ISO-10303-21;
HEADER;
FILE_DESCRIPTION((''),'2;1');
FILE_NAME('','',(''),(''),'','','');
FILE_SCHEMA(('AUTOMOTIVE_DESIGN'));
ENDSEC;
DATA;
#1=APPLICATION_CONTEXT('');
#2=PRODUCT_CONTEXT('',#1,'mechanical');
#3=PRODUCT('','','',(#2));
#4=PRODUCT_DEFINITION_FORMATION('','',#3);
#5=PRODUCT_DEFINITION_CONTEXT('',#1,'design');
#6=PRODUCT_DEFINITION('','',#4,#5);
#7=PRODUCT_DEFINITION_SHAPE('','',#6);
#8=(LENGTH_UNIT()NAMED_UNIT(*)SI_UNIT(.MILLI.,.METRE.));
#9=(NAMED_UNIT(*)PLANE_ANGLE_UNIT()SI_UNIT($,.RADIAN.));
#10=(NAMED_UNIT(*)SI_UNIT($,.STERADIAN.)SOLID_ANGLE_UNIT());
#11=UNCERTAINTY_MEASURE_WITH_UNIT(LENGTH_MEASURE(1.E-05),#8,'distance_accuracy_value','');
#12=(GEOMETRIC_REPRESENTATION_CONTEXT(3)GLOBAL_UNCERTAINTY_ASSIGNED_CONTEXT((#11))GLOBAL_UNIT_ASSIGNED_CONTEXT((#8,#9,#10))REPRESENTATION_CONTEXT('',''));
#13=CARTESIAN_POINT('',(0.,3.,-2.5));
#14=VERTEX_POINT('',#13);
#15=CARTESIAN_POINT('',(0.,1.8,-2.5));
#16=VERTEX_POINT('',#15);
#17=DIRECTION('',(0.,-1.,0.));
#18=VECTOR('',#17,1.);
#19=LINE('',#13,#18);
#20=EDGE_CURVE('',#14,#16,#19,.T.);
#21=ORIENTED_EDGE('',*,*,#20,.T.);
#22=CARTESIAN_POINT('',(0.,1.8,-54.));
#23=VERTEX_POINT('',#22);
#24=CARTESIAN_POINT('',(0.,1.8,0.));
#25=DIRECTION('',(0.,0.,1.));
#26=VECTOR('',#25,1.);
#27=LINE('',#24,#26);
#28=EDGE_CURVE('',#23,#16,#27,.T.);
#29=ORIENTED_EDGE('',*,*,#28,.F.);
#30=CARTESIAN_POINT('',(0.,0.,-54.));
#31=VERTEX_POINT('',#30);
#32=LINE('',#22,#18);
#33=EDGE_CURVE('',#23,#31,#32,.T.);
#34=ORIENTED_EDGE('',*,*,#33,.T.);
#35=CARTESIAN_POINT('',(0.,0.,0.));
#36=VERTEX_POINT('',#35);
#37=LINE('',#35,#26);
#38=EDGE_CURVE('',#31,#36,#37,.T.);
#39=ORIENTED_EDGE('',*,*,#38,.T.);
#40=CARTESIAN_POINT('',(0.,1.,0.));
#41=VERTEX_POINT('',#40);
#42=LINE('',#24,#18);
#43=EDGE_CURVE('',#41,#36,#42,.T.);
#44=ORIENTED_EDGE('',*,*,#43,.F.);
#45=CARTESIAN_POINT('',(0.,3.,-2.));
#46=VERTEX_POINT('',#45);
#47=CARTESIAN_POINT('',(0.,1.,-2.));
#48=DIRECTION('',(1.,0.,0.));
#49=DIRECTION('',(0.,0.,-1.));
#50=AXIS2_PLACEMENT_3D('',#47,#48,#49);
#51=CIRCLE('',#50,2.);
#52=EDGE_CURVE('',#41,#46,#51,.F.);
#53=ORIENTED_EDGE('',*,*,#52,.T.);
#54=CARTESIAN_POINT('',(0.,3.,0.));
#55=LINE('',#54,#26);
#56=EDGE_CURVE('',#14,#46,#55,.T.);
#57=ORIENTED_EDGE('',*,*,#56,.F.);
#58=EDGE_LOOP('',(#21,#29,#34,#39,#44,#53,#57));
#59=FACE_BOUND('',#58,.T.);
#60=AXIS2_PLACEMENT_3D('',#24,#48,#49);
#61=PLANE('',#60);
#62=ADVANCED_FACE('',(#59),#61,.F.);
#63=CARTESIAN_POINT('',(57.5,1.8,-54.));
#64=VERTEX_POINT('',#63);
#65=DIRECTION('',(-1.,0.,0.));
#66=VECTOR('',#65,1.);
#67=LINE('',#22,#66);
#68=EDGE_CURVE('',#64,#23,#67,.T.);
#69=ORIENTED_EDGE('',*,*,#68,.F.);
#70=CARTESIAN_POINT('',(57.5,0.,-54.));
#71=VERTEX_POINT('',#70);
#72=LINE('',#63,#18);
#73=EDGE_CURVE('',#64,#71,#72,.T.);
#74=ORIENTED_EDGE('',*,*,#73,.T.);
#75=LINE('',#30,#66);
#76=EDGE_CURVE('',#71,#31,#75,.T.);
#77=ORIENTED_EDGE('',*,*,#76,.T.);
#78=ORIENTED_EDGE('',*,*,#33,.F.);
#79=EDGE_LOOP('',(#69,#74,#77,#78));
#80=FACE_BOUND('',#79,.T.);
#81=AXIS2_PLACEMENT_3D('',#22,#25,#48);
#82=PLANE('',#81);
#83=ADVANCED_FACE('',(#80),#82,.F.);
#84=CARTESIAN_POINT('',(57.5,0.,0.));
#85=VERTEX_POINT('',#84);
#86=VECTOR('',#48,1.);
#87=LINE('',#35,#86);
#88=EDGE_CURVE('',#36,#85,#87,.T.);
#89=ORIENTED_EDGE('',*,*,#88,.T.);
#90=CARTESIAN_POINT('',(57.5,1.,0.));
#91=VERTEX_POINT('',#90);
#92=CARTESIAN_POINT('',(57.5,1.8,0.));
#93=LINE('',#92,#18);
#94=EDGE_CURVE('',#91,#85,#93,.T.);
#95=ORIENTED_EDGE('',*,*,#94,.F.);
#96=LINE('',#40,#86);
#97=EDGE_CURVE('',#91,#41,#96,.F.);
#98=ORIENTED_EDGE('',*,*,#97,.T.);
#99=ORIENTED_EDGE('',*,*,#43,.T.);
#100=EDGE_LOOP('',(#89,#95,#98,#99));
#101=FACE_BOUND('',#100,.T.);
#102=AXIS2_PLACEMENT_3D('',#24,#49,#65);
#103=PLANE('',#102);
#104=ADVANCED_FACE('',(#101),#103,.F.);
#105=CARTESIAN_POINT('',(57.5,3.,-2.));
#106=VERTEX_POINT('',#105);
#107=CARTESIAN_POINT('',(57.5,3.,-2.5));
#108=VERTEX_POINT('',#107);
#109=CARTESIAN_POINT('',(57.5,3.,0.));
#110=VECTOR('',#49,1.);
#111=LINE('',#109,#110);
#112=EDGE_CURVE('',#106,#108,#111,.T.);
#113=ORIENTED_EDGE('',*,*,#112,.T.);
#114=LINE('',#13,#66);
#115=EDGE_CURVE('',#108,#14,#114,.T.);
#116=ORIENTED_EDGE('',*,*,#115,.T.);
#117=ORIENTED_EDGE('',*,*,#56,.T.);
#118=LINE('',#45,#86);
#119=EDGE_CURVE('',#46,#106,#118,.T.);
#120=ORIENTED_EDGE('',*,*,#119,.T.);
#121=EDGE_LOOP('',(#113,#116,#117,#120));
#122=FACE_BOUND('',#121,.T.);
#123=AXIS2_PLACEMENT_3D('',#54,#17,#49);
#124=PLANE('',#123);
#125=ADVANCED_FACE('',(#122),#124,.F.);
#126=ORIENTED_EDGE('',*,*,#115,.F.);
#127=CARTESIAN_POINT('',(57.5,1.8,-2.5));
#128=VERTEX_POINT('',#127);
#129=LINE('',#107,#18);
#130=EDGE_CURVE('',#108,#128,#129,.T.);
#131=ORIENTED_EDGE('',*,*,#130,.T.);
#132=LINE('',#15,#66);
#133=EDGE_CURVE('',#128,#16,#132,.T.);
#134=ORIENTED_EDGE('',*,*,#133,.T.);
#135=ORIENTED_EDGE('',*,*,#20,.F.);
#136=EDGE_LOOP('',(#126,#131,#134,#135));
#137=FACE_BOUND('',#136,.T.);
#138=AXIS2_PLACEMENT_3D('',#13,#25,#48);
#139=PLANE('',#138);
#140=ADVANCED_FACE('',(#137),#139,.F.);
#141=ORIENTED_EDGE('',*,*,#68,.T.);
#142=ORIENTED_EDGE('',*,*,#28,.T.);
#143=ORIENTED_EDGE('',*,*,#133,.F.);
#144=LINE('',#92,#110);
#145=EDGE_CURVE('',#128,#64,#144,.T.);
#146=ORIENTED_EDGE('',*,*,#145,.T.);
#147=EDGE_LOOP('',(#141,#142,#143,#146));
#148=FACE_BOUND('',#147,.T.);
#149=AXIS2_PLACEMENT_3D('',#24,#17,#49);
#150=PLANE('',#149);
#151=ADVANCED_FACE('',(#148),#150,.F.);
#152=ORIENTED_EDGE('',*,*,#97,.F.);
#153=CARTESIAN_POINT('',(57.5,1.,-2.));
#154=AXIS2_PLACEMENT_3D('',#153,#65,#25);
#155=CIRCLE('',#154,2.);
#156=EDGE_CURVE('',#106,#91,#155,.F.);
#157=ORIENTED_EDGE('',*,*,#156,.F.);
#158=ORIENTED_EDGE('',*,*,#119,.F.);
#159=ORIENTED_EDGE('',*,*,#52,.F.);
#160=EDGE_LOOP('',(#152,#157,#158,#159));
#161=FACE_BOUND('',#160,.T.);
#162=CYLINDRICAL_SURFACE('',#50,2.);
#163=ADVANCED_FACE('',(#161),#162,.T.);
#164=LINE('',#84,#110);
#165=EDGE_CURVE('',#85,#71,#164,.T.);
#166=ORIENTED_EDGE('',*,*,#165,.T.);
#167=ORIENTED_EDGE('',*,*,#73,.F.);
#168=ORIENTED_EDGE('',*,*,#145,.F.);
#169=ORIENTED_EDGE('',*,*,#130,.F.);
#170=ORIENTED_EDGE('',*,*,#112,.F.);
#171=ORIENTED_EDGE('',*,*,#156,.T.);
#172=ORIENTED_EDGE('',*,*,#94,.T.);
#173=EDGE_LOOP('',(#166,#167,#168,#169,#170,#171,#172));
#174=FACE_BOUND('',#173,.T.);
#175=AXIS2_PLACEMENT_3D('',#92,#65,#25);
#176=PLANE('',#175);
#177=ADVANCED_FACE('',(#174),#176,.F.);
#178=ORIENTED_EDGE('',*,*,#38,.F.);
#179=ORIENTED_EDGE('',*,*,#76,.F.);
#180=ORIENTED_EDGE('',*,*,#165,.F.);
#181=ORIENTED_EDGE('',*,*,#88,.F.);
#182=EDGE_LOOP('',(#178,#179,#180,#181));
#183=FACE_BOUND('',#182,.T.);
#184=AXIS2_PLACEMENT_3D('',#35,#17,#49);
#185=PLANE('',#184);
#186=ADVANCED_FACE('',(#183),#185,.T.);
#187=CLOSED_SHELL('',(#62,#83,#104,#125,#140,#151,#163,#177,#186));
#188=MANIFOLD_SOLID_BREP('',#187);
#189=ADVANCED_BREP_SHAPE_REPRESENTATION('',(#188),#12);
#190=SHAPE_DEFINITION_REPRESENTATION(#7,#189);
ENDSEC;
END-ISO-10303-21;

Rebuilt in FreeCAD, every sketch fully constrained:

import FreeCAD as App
import Part
import Sketcher
Q = App.Units.Quantity


def edges_at(feature, points):
    """Names of the edges that pass closest to the given points."""
    edges = feature.Shape.Edges
    near = lambda p: min(range(len(edges)), key=lambda i: edges[i].distToShape(Part.Vertex(*p))[0])
    return sorted({f"Edge{near(p) + 1}" for p in points})


def add_polygon(sketch, points):
    """Adds a closed chain of lines whose ends are joined by coincident constraints."""
    first, n = sketch.GeometryCount, len(points)
    for a, b in zip(points, points[1:] + points[:1]):
        sketch.addGeometry(Part.LineSegment(App.Vector(*a, 0), App.Vector(*b, 0)), False)
    for i in range(n):
        sketch.addConstraint(Sketcher.Constraint("Coincident", first + i, 2, first + (i + 1) % n, 1))

doc = App.newDocument("Part")
params = doc.addObject("Spreadsheet::Sheet", "Params")
for row, (alias, value) in enumerate([
    ("sketch1_height", "54 mm"),
    ("sketch1_width", "57.5 mm"),
    ("pad1_length", "1.8 mm"),
    ("sketch2_width", "57.5 mm"),
    ("sketch2_height", "2.5 mm"),
    ("pad2_length", "1.2 mm"),
    ("fillet_radius", "2 mm"),
], start=1):
    params.set(f"A{row}", alias)
    params.set(f"B{row}", "=" + value)
    params.setAlias(f"B{row}", alias)

body = doc.addObject("PartDesign::Body", "Body")

# Sketch on XZ plane
sketch1 = body.newObject("Sketcher::SketchObject", "Sketch")
sketch1.AttachmentSupport = (doc.getObject("XZ_Plane"), [""])
sketch1.MapMode = "FlatFace"
add_polygon(sketch1, [(0, -54), (0, 0), (58, 0), (58, -54)])  # lines 0-3
sketch1.addConstraint(Sketcher.Constraint("Vertical", 0))
sketch1.addConstraint(Sketcher.Constraint("Horizontal", 1))
sketch1.addConstraint(Sketcher.Constraint("Vertical", 2))
sketch1.addConstraint(Sketcher.Constraint("Horizontal", 3))
sketch1.addConstraint(Sketcher.Constraint("Coincident", 0, 2, -1, 1))
sketch1.addConstraint(Sketcher.Constraint("DistanceY", 0, 1, 0, 2, Q("54 mm")))
sketch1.addConstraint(Sketcher.Constraint("DistanceX", 1, 1, 1, 2, Q("57.5 mm")))
sketch1.setExpression("Constraints[9]", "Params.sketch1_height")
sketch1.setExpression("Constraints[10]", "Params.sketch1_width")
pad1 = body.newObject("PartDesign::Pad", "Pad")
pad1.Profile = sketch1
pad1.setExpression("Length", "Params.pad1_length")
pad1.Reversed = True

# Sketch on XZ plane
sketch2 = body.newObject("Sketcher::SketchObject", "Sketch001")
sketch2.AttachmentSupport = (doc.getObject("XZ_Plane"), [""])
sketch2.MapMode = "FlatFace"
sketch2.AttachmentOffset = App.Placement(App.Vector(0, 0, -1.8), App.Rotation())
add_polygon(sketch2, [(0, -2.5), (0, 0), (57.5, 0), (57.5, -2.5)])  # lines 0-3
sketch2.addConstraint(Sketcher.Constraint("Vertical", 0))
sketch2.addConstraint(Sketcher.Constraint("Horizontal", 1))
sketch2.addConstraint(Sketcher.Constraint("Vertical", 2))
sketch2.addConstraint(Sketcher.Constraint("Horizontal", 3))
sketch2.addConstraint(Sketcher.Constraint("Coincident", 0, 2, -1, 1))
sketch2.addConstraint(Sketcher.Constraint("DistanceX", 1, 1, 1, 2, Q("57.5 mm")))
sketch2.addConstraint(Sketcher.Constraint("DistanceY", 0, 1, 0, 2, Q("2.5 mm")))
sketch2.setExpression("Constraints[9]", "Params.sketch2_width")
sketch2.setExpression("Constraints[10]", "Params.sketch2_height")
pad2 = body.newObject("PartDesign::Pad", "Pad001")
pad2.Profile = sketch2
pad2.setExpression("Length", "Params.pad2_length")
pad2.Reversed = True
doc.recompute()

fillet = body.newObject("PartDesign::Fillet", "Fillet")
fillet.Base = (pad2, edges_at(pad2, [(28.75, 3, 0)]))
fillet.setExpression("Radius", "Params.fillet_radius")

doc.recompute()
